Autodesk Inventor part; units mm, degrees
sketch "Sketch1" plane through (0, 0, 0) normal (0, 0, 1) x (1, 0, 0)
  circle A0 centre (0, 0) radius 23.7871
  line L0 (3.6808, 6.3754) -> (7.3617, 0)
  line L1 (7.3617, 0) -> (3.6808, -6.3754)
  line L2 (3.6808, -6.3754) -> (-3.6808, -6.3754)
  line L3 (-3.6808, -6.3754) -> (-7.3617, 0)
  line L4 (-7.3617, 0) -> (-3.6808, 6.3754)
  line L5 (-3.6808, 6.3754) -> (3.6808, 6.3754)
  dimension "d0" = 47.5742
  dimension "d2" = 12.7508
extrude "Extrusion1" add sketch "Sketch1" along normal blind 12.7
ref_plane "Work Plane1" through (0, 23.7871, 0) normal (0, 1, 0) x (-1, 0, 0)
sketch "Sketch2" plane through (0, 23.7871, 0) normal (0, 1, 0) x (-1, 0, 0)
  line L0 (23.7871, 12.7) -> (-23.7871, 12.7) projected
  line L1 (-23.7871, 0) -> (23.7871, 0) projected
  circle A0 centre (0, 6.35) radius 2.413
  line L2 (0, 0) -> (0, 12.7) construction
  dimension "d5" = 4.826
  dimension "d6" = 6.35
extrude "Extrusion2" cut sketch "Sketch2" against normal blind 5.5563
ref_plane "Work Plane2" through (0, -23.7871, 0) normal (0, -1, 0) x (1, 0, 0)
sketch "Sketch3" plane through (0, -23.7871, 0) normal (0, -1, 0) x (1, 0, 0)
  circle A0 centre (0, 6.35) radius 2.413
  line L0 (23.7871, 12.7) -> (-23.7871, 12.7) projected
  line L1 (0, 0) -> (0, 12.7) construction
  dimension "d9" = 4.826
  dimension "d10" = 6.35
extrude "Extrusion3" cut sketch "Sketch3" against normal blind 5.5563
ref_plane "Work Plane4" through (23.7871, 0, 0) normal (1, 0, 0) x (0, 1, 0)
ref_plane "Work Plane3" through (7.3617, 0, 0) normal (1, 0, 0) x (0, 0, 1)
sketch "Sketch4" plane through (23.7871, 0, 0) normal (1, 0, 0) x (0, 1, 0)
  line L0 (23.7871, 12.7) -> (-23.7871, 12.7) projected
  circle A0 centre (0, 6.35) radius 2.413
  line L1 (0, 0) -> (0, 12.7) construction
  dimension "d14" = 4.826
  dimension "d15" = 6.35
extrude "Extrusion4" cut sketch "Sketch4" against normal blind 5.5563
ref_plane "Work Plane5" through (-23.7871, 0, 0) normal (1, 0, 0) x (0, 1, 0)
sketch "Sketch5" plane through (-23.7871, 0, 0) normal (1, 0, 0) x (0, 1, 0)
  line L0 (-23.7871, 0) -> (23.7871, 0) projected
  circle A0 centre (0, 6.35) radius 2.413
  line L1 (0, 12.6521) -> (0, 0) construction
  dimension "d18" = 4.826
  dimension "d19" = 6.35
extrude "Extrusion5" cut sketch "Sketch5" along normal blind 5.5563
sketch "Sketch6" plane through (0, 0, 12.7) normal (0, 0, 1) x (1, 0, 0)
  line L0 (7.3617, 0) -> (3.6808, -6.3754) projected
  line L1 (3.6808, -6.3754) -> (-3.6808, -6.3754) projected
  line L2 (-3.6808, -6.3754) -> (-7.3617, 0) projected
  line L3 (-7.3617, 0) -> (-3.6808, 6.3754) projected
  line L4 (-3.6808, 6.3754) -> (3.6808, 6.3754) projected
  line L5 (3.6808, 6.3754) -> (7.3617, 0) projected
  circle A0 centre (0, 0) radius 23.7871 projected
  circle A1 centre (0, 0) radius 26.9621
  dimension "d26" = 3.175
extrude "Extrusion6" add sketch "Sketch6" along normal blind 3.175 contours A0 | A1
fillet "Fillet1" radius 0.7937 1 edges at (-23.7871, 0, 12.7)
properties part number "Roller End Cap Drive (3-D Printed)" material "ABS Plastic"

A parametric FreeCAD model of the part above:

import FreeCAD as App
import Part
import Sketcher

V = App.Vector
Q = App.Units.Quantity


def edges_at(feature, points):
    """Names of the edges that pass closest to the given points."""
    edges = feature.Shape.Edges
    near = lambda p: min(range(len(edges)), key=lambda i: edges[i].distToShape(Part.Vertex(*p))[0])
    return sorted({f"Edge{near(p) + 1}" for p in points})

doc = App.newDocument("Part")
body = doc.addObject("PartDesign::Body", "Body")

# Sketch on XY plane
sketch1 = doc.addObject("Sketcher::SketchObject", "Sketch")
body.addObject(sketch1)
sketch1.AttachmentSupport = (doc.XY_Plane, [""])
sketch1.MapMode = "FlatFace"
sketch1.addGeometry([
    Part.Circle(V(0, 0, 0), V(0, 0, 1), 24),  # 0
    Part.LineSegment(V(-4, 6, 0), V(4, 6, 0)),  # 1
    Part.LineSegment(V(4, 6, 0), V(7, 0, 0)),  # 2
    Part.LineSegment(V(7, 0, 0), V(4, -6, 0)),  # 3
    Part.LineSegment(V(4, -6, 0), V(-4, -6, 0)),  # 4
    Part.LineSegment(V(-4, -6, 0), V(-7, 0, 0)),  # 5
    Part.LineSegment(V(-7, 0, 0), V(-4, 6, 0)),  # 6
], False)
sketch1.addConstraint([
    Sketcher.Constraint("Coincident", 1, 2, 2, 1),
    Sketcher.Constraint("Coincident", 2, 2, 3, 1),
    Sketcher.Constraint("Coincident", 3, 2, 4, 1),
    Sketcher.Constraint("Coincident", 4, 2, 5, 1),
    Sketcher.Constraint("Coincident", 5, 2, 6, 1),
    Sketcher.Constraint("Coincident", 6, 2, 1, 1),
    Sketcher.Constraint("Horizontal", 1),
    Sketcher.Constraint("Horizontal", 4),
    Sketcher.Constraint("Coincident", 0, 3, -1, 1),
    Sketcher.Constraint("Symmetric", 1, 2, 4, 2, -1, 1),
    Sketcher.Constraint("Symmetric", 2, 2, 5, 2, -1, 1),
    Sketcher.Constraint("PointOnObject", 2, 2, -1),
    Sketcher.Constraint("Parallel", 3, 6),
    Sketcher.Constraint("Vertical", 1, 2, 3, 2),
    Sketcher.Constraint("Diameter", 0, Q("1.873 in")),
    Sketcher.Constraint("Angle", 2, Q("-59.9996 deg")),
    Sketcher.Constraint("DistanceY", 3, 2, 1, 2, Q("0.502 in")),
    Sketcher.Constraint("DistanceX", 1, 1, 1, 2, 7.3616),
])
pad1 = doc.addObject("PartDesign::Pad", "Pad")
body.addObject(pad1)
pad1.Profile = sketch1
pad1.Length = Q("0.5 in")

# Sketch on XZ plane
sketch2 = doc.addObject("Sketcher::SketchObject", "Sketch001")
body.addObject(sketch2)
sketch2.AttachmentSupport = (doc.XZ_Plane, [""])
sketch2.MapMode = "FlatFace"
sketch2.AttachmentOffset = App.Placement(V(0, 0, -0.9365 * 25.4), App.Rotation())
sketch2.addGeometry(Part.Circle(V(0, 6.3, 0), V(0, 0, 1), 2.4), False)
sketch2.addConstraint([
    Sketcher.Constraint("PointOnObject", 0, 3, -2),
    Sketcher.Constraint("Diameter", 0, Q("0.19 in")),
    Sketcher.Constraint("DistanceY", -1, 1, 0, 3, Q("0.25 in")),
])
pocket1 = doc.addObject("PartDesign::Pocket", "Pocket")
body.addObject(pocket1)
pocket1.Profile = sketch2
pocket1.Length = Q("0.218752 in")
pocket1.Reversed = True

# Sketch on XZ plane
sketch3 = doc.addObject("Sketcher::SketchObject", "Sketch002")
body.addObject(sketch3)
sketch3.AttachmentSupport = (doc.XZ_Plane, [""])
sketch3.MapMode = "FlatFace"
sketch3.AttachmentOffset = App.Placement(V(0, 0, 0.9365 * 25.4), App.Rotation())
sketch3.addGeometry(Part.Circle(V(0, 6.3, 0), V(0, 0, 1), 2.4), False)
sketch3.addConstraint([
    Sketcher.Constraint("PointOnObject", 0, 3, -2),
    Sketcher.Constraint("Diameter", 0, Q("0.19 in")),
    Sketcher.Constraint("DistanceY", -1, 1, 0, 3, Q("0.25 in")),
])
pocket2 = doc.addObject("PartDesign::Pocket", "Pocket001")
body.addObject(pocket2)
pocket2.Profile = sketch3
pocket2.Length = Q("0.218752 in")

# Sketch on YZ plane
sketch4 = doc.addObject("Sketcher::SketchObject", "Sketch003")
body.addObject(sketch4)
sketch4.AttachmentSupport = (doc.YZ_Plane, [""])
sketch4.MapMode = "FlatFace"
sketch4.AttachmentOffset = App.Placement(V(0, 0, 0.9365 * 25.4), App.Rotation())
sketch4.addGeometry(Part.Circle(V(0, 6.3, 0), V(0, 0, 1), 2.4), False)
sketch4.addConstraint([
    Sketcher.Constraint("PointOnObject", 0, 3, -2),
    Sketcher.Constraint("Diameter", 0, Q("0.19 in")),
    Sketcher.Constraint("DistanceY", -1, 1, 0, 3, Q("0.25 in")),
])
pocket3 = doc.addObject("PartDesign::Pocket", "Pocket002")
body.addObject(pocket3)
pocket3.Profile = sketch4
pocket3.Length = Q("0.218752 in")

# Sketch on YZ plane
sketch5 = doc.addObject("Sketcher::SketchObject", "Sketch004")
body.addObject(sketch5)
sketch5.AttachmentSupport = (doc.YZ_Plane, [""])
sketch5.MapMode = "FlatFace"
sketch5.AttachmentOffset = App.Placement(V(0, 0, -0.9365 * 25.4), App.Rotation())
sketch5.addGeometry(Part.Circle(V(0, 6.3, 0), V(0, 0, 1), 2.4), False)
sketch5.addConstraint([
    Sketcher.Constraint("PointOnObject", 0, 3, -2),
    Sketcher.Constraint("Diameter", 0, Q("0.19 in")),
    Sketcher.Constraint("DistanceY", -1, 1, 0, 3, Q("0.25 in")),
])
pocket4 = doc.addObject("PartDesign::Pocket", "Pocket003")
body.addObject(pocket4)
pocket4.Profile = sketch5
pocket4.Length = Q("0.218752 in")
pocket4.Reversed = True

# Sketch on XY plane
sketch6 = doc.addObject("Sketcher::SketchObject", "Sketch005")
body.addObject(sketch6)
sketch6.AttachmentSupport = (doc.XY_Plane, [""])
sketch6.MapMode = "FlatFace"
sketch6.AttachmentOffset = App.Placement(V(0, 0, 0.5 * 25.4), App.Rotation())
sketch6.addGeometry([
    Part.Circle(V(0, 0, 0), V(0, 0, 1), 27),  # 0
    Part.LineSegment(V(4, 6, 0), V(7, 0, 0)),  # 1
    Part.LineSegment(V(7, 0, 0), V(4, -6, 0)),  # 2
    Part.LineSegment(V(4, -6, 0), V(-4, -6, 0)),  # 3
    Part.LineSegment(V(-4, -6, 0), V(-7, 0, 0)),  # 4
    Part.LineSegment(V(-7, 0, 0), V(-4, 6, 0)),  # 5
    Part.LineSegment(V(-4, 6, 0), V(4, 6, 0)),  # 6
], False)
sketch6.addConstraint([
    Sketcher.Constraint("Coincident", 1, 2, 2, 1),
    Sketcher.Constraint("Coincident", 2, 2, 3, 1),
    Sketcher.Constraint("Coincident", 3, 2, 4, 1),
    Sketcher.Constraint("Coincident", 4, 2, 5, 1),
    Sketcher.Constraint("Coincident", 5, 2, 6, 1),
    Sketcher.Constraint("Coincident", 6, 2, 1, 1),
    Sketcher.Constraint("Horizontal", 3),
    Sketcher.Constraint("Horizontal", 6),
    Sketcher.Constraint("Coincident", 0, 3, -1, 1),
    Sketcher.Constraint("Symmetric", 1, 2, 4, 2, -1, 1),
    Sketcher.Constraint("Symmetric", 2, 2, 5, 2, -1, 1),
    Sketcher.Constraint("PointOnObject", 1, 2, -1),
    Sketcher.Constraint("Parallel", 1, 4),
    Sketcher.Constraint("Vertical", 3, 2, 5, 2),
    Sketcher.Constraint("Diameter", 0, Q("2.123 in")),
    Sketcher.Constraint("Angle", 1, Q("-59.9996 deg")),
    Sketcher.Constraint("DistanceY", 2, 2, -1, 1, Q("0.251 in")),
    Sketcher.Constraint("DistanceX", 3, 2, 3, 1, 7.3616),
])
pad2 = doc.addObject("PartDesign::Pad", "Pad001")
body.addObject(pad2)
pad2.Profile = sketch6
pad2.Length = Q("0.125 in")
doc.recompute()

fillet = doc.addObject("PartDesign::Fillet", "Fillet")
body.addObject(fillet)
fillet.Base = (pad2, edges_at(pad2, [(-23.787, 0, 12.7)]))
fillet.Radius = Q("0.031248 in")

doc.recompute()
